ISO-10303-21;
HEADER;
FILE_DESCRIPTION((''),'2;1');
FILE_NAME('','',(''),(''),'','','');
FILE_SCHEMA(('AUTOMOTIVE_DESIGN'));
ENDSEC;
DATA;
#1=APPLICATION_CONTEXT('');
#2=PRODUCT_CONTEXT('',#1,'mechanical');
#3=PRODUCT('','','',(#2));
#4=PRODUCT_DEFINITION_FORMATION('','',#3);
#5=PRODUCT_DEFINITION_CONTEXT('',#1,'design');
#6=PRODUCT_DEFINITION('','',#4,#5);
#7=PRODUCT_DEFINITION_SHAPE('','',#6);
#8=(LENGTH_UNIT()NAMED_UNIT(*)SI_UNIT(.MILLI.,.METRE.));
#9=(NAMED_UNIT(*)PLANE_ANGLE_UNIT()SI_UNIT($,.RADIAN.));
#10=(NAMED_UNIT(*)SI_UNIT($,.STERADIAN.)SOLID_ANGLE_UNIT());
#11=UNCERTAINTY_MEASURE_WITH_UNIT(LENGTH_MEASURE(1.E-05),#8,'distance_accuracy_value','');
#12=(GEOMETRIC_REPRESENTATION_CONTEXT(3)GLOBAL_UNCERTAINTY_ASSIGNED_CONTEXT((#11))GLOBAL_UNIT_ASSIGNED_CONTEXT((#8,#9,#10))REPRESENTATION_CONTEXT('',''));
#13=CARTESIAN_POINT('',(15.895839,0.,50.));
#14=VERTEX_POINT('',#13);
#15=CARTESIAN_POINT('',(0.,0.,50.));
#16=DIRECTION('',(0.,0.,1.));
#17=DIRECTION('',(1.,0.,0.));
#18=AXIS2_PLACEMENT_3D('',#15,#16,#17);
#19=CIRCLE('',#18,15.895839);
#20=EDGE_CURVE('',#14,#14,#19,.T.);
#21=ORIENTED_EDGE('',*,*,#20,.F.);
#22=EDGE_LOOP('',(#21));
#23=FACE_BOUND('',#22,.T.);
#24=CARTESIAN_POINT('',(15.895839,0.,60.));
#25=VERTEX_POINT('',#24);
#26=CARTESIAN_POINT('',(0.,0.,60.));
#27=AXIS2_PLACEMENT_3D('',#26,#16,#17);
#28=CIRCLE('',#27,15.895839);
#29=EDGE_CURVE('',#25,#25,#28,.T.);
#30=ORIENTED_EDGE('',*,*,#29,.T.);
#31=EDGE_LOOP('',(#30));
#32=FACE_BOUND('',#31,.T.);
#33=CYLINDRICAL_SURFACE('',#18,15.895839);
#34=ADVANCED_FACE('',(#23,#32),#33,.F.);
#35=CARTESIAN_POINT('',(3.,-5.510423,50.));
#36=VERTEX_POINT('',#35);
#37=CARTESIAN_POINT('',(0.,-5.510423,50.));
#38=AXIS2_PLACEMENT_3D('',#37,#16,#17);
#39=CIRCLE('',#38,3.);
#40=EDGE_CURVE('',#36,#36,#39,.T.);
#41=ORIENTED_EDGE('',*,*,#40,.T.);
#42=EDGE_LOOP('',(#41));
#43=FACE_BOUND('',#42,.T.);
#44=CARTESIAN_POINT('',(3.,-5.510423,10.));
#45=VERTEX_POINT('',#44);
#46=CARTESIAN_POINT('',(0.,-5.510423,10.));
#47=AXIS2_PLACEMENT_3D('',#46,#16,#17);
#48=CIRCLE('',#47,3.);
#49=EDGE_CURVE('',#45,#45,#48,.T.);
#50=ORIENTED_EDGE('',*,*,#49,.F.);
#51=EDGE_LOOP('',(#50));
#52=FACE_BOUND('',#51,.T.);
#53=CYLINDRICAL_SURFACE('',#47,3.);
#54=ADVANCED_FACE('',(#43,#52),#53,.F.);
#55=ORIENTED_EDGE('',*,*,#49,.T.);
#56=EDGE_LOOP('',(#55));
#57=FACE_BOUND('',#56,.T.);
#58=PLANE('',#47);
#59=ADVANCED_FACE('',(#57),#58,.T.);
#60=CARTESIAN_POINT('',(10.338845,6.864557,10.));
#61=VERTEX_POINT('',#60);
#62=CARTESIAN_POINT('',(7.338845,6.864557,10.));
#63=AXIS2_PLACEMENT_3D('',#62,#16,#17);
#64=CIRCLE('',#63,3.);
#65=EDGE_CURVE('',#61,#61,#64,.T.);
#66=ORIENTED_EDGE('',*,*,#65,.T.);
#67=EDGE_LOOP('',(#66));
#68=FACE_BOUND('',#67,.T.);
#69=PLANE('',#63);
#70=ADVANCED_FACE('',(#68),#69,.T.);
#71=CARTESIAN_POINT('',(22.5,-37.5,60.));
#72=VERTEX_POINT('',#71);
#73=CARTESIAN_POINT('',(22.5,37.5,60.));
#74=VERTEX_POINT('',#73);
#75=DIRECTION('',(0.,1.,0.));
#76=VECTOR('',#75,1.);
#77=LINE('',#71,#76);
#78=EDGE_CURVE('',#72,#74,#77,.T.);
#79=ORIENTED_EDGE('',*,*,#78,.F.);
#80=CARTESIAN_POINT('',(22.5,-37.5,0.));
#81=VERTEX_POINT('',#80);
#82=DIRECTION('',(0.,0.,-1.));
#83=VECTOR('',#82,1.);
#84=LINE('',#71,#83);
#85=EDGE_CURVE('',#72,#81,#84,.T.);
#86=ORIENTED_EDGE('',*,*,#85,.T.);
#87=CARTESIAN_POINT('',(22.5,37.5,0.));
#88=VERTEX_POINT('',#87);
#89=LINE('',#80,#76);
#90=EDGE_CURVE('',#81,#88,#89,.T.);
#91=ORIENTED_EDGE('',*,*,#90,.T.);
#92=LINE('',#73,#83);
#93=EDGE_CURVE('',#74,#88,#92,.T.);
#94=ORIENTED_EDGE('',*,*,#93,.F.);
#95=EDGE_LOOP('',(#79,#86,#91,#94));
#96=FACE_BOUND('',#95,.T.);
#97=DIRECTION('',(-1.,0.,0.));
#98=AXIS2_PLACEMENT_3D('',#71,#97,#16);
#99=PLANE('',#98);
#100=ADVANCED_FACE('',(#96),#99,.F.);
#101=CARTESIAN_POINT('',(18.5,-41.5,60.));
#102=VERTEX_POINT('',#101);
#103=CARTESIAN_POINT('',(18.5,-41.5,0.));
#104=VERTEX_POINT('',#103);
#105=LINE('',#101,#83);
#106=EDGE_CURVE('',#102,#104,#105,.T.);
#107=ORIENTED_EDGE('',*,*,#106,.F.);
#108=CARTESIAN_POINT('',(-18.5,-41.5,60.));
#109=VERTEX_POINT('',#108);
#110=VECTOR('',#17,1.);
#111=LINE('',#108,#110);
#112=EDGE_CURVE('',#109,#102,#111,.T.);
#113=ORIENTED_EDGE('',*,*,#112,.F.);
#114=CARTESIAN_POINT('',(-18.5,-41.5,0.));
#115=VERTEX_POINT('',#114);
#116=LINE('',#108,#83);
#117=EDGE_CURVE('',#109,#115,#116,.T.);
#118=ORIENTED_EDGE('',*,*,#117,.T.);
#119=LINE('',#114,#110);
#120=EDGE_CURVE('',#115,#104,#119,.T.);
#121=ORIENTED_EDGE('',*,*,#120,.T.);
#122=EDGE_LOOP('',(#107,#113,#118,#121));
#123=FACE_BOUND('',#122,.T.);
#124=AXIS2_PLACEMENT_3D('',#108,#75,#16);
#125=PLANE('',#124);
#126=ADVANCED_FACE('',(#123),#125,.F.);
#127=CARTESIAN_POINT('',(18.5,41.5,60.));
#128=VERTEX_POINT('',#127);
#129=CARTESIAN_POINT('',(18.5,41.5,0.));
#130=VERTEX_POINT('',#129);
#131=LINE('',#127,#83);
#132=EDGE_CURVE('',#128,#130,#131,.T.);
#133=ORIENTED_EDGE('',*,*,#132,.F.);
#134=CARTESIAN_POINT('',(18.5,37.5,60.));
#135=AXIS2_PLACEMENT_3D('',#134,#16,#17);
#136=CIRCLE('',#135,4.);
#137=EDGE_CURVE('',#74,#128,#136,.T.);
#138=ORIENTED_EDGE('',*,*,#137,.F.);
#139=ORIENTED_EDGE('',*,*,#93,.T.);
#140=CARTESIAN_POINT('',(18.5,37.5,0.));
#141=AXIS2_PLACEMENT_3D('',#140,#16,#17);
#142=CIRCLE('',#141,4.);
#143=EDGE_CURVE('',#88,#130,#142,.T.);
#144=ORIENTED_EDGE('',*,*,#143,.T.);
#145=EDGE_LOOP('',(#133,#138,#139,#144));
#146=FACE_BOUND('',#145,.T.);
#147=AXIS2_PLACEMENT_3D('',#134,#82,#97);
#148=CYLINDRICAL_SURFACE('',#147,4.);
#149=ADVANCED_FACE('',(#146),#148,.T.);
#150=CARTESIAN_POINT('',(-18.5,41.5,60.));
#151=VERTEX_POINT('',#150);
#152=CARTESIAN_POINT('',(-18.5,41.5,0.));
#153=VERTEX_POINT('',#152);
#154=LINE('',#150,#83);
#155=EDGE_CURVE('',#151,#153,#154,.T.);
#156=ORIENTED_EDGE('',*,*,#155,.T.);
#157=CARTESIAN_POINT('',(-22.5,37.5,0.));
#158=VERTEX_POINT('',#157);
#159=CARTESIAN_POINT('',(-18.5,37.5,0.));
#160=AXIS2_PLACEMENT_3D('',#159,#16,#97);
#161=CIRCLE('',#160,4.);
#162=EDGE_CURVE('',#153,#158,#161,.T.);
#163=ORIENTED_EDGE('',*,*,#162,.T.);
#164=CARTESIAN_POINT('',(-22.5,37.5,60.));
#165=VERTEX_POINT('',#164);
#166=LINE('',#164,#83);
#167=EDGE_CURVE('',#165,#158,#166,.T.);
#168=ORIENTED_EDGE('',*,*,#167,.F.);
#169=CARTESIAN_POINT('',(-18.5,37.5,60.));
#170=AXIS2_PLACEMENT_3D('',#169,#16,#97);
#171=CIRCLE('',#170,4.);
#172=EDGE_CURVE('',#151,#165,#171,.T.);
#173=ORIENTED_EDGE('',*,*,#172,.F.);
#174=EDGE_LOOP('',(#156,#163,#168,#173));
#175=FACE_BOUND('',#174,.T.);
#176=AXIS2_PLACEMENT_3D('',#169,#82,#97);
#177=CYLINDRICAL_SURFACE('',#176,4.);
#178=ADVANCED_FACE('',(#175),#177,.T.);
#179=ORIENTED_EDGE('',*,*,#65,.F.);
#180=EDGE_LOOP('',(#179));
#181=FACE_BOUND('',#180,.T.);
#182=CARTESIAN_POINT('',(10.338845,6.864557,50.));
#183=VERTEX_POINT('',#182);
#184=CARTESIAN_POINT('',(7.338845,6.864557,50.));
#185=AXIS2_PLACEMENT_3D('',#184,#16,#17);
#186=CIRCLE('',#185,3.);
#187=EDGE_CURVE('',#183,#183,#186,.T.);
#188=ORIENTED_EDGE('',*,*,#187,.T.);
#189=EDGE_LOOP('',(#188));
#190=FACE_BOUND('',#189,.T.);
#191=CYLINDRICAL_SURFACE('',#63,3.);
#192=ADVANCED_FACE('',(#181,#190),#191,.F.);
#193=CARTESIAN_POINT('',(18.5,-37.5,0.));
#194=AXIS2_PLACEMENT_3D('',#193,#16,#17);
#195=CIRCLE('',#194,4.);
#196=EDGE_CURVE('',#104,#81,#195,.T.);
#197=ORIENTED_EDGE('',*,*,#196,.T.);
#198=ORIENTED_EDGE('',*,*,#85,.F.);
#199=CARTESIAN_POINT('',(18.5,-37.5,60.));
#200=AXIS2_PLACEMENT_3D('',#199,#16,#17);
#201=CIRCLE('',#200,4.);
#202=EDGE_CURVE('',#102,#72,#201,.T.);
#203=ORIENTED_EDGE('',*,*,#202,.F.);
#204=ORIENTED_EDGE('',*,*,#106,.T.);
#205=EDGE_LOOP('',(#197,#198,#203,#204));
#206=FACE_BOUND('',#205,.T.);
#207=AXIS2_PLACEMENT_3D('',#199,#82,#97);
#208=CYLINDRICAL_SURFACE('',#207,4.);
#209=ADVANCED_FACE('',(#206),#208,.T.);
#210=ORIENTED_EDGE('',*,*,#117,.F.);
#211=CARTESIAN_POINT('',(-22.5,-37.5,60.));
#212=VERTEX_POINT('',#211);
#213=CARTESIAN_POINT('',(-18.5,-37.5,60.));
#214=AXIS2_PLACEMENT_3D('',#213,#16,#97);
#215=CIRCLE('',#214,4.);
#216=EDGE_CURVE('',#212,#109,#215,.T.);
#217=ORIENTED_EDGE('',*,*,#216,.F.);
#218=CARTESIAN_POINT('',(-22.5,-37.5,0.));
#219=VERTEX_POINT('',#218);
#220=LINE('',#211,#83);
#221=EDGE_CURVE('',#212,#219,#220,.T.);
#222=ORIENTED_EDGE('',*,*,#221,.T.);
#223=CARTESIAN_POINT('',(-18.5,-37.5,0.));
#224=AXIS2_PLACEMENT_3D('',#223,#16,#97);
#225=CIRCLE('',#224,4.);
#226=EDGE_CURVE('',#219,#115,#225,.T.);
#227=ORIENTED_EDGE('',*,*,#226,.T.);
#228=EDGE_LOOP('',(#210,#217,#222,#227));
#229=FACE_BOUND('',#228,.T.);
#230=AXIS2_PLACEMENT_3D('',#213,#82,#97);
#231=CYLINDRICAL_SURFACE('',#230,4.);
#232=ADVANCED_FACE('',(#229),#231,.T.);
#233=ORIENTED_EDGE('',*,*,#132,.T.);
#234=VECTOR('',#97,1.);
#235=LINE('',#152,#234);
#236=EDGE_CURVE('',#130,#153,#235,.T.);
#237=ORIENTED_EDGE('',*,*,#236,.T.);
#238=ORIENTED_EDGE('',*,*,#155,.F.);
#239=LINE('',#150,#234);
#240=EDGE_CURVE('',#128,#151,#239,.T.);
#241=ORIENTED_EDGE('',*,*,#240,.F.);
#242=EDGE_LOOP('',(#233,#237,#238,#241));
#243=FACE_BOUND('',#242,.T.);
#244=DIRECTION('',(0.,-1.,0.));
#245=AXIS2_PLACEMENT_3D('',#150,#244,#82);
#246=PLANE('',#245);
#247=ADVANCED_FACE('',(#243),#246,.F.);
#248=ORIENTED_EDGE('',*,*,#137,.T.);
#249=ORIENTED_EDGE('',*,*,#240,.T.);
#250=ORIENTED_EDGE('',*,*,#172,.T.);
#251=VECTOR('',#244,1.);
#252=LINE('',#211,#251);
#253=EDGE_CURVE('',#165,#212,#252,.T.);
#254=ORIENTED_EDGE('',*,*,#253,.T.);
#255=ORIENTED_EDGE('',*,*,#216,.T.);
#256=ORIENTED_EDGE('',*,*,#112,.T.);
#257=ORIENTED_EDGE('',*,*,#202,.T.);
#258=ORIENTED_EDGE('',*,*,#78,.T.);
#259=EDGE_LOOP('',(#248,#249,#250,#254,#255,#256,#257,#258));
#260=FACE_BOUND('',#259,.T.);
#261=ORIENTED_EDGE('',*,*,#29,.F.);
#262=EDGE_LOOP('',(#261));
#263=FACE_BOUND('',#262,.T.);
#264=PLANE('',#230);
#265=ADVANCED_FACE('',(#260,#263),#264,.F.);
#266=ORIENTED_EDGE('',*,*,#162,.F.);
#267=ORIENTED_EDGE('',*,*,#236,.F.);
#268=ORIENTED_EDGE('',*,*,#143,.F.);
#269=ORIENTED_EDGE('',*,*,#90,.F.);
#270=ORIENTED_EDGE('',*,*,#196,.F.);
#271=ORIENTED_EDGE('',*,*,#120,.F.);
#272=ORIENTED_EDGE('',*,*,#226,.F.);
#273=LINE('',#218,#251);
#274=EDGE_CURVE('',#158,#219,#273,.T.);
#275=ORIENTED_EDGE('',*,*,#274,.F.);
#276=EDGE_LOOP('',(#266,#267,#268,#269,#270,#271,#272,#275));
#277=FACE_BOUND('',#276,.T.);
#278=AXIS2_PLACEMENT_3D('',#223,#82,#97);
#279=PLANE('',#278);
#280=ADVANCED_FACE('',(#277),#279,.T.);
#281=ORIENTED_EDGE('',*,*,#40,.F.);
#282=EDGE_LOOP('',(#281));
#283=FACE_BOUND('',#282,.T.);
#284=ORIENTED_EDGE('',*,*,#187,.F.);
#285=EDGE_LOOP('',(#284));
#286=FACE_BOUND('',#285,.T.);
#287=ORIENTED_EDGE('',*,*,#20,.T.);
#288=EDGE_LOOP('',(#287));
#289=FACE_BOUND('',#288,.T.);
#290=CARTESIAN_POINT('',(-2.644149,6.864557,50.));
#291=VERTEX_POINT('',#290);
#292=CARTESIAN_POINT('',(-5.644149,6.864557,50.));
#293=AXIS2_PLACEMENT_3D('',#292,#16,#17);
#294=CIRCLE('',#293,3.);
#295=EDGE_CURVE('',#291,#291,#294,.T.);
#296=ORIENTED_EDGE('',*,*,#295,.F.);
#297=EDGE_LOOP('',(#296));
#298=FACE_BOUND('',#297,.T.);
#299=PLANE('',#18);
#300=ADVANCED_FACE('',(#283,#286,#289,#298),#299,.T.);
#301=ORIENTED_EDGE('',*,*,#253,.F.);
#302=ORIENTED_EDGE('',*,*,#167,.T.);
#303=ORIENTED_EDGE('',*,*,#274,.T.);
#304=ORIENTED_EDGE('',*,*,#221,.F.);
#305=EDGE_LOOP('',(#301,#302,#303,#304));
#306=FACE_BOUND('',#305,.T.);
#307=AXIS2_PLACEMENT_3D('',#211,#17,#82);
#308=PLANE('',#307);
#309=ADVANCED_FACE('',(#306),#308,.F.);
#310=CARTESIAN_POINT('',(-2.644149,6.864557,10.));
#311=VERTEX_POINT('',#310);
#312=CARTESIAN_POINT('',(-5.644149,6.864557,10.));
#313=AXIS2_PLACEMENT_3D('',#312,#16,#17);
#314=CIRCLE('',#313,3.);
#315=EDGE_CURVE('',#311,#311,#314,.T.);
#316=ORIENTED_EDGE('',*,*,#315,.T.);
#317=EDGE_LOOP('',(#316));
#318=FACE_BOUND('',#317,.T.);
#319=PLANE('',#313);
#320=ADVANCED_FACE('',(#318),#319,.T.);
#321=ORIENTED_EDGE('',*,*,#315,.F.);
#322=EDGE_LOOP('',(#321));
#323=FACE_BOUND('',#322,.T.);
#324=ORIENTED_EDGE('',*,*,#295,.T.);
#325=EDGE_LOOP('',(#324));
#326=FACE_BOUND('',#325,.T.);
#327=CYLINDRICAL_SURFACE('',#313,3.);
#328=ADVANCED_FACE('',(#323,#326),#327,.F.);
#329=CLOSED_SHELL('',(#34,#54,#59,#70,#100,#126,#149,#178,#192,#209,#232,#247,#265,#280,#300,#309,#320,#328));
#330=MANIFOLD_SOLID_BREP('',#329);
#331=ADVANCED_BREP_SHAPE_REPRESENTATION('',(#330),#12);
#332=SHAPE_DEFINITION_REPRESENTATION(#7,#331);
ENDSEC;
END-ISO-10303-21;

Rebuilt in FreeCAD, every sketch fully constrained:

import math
import FreeCAD as App
import Part
import Sketcher
from FreeCAD import Vector
Q = App.Units.Quantity

doc = App.newDocument("Part")
body = doc.addObject("PartDesign::Body", "Body")

# Sketch on XY plane
sketch1 = doc.addObject("Sketcher::SketchObject", "Sketch")
body.addObject(sketch1)
sketch1.AttachmentSupport = (doc.XY_Plane, [""])
sketch1.MapMode = "FlatFace"
sketch1.addGeometry([
    Part.LineSegment(Vector(-18.5, -41.5, 0), Vector(18.5, -41.5, 0)),  # 0
    Part.ArcOfCircle(Part.Circle(Vector(18.5, -37.5, 0), Vector(0, 0, 1), 4), math.radians(-90), math.radians(0)),  # 1
    Part.LineSegment(Vector(22.5, -37.5, 0), Vector(22.5, 37.5, 0)),  # 2
    Part.ArcOfCircle(Part.Circle(Vector(18.5, 37.5, 0), Vector(0, 0, 1), 4), math.radians(0), math.radians(90)),  # 3
    Part.LineSegment(Vector(18.5, 41.5, 0), Vector(-18.5, 41.5, 0)),  # 4
    Part.ArcOfCircle(Part.Circle(Vector(-18.5, 37.5, 0), Vector(0, 0, 1), 4), math.radians(90), math.radians(180)),  # 5
    Part.LineSegment(Vector(-22.5, 37.5, 0), Vector(-22.5, -37.5, 0)),  # 6
    Part.ArcOfCircle(Part.Circle(Vector(-18.5, -37.5, 0), Vector(0, 0, 1), 4), math.radians(180), math.radians(270)),  # 7
], False)
sketch1.addConstraint([
    Sketcher.Constraint("Tangent", 0, 2, 1, 1),
    Sketcher.Constraint("Tangent", 1, 2, 2, 1),
    Sketcher.Constraint("Tangent", 2, 2, 3, 1),
    Sketcher.Constraint("Tangent", 3, 2, 4, 1),
    Sketcher.Constraint("Tangent", 4, 2, 5, 1),
    Sketcher.Constraint("Tangent", 5, 2, 6, 1),
    Sketcher.Constraint("Tangent", 6, 2, 7, 1),
    Sketcher.Constraint("Tangent", 7, 2, 0, 1),
    Sketcher.Constraint("Horizontal", 0),
    Sketcher.Constraint("Vertical", 2),
    Sketcher.Constraint("Horizontal", 4),
    Sketcher.Constraint("Vertical", 6),
    Sketcher.Constraint("Equal", 1, 3),
    Sketcher.Constraint("Equal", 3, 5),
    Sketcher.Constraint("Equal", 5, 7),
    Sketcher.Constraint("Symmetric", 1, 3, 5, 3, -1, 1),
    Sketcher.Constraint("Radius", 1, Q("4 mm")),
    Sketcher.Constraint("DistanceX", 0, 1, 0, 2, Q("37 mm")),
    Sketcher.Constraint("DistanceY", 2, 1, 2, 2, Q("75 mm")),
])
pad1 = doc.addObject("PartDesign::Pad", "Pad")
body.addObject(pad1)
pad1.Profile = sketch1
pad1.Length = 60

# Sketch on XY plane
sketch2 = doc.addObject("Sketcher::SketchObject", "Sketch001")
body.addObject(sketch2)
sketch2.AttachmentSupport = (doc.XY_Plane, [""])
sketch2.MapMode = "FlatFace"
sketch2.AttachmentOffset = App.Placement(Vector(0, 0, 60), App.Rotation())
sketch2.addGeometry(Part.Circle(Vector(0, 0, 0), Vector(0, 0, 1), 16), False)
sketch2.addConstraint([
    Sketcher.Constraint("Coincident", 0, 3, -1, 1),
    Sketcher.Constraint("Diameter", 0, Q("31.791678 mm")),
])
pocket1 = doc.addObject("PartDesign::Pocket", "Pocket")
body.addObject(pocket1)
pocket1.Profile = sketch2
pocket1.Length = 10

# Sketch on XY plane
sketch3 = doc.addObject("Sketcher::SketchObject", "Sketch002")
body.addObject(sketch3)
sketch3.AttachmentSupport = (doc.XY_Plane, [""])
sketch3.MapMode = "FlatFace"
sketch3.AttachmentOffset = App.Placement(Vector(0, 0, 50), App.Rotation())
sketch3.addGeometry([
    Part.Circle(Vector(7.3, 6.9, 0), Vector(0, 0, 1), 3),
    Part.Circle(Vector(-5.6, 6.9, 0), Vector(0, 0, 1), 3),
    Part.Circle(Vector(0, -5.5, 0), Vector(0, 0, 1), 3),
], False)
sketch3.addConstraint([
    Sketcher.Constraint("Equal", 0, 1),
    Sketcher.Constraint("Equal", 1, 2),
    Sketcher.Constraint("PointOnObject", 2, 3, -2),
    Sketcher.Constraint("Horizontal", 0, 3, 1, 3),
    Sketcher.Constraint("Diameter", 0, Q("6 mm")),
    Sketcher.Constraint("DistanceX", 1, 3, -1, 1, Q("5.644149 mm")),
    Sketcher.Constraint("DistanceY", 2, 3, 1, 3, Q("12.37498 mm")),
    Sketcher.Constraint("DistanceX", -1, 1, 0, 3, Q("7.338845 mm")),
    Sketcher.Constraint("DistanceY", -1, 1, 0, 3, Q("6.864557 mm")),
])
pocket2 = doc.addObject("PartDesign::Pocket", "Pocket001")
body.addObject(pocket2)
pocket2.Profile = sketch3
pocket2.Length = 40

doc.recompute()
